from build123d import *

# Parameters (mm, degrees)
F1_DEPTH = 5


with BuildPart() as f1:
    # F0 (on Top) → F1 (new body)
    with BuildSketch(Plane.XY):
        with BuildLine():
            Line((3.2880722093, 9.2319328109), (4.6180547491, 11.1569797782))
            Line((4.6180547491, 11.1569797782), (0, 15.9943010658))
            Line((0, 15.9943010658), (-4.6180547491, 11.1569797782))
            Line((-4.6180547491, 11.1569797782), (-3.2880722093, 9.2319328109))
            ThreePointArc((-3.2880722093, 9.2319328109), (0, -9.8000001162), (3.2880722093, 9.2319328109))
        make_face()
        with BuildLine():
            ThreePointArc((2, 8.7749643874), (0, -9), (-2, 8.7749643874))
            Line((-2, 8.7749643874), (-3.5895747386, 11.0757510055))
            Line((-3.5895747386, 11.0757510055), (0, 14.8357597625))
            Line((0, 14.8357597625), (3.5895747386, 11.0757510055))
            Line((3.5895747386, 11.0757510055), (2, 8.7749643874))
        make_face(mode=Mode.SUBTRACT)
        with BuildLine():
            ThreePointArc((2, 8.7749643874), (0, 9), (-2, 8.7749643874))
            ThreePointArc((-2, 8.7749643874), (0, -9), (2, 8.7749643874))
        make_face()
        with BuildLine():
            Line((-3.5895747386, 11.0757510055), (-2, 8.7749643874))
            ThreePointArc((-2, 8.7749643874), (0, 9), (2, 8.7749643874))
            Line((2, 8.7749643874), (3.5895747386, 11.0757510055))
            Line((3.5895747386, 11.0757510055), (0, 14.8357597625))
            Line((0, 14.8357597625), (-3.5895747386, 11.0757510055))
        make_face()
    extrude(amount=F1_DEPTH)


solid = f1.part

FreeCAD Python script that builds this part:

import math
import FreeCAD as App
import Part
import Sketcher
Q = App.Units.Quantity

doc = App.newDocument("Part")
params = doc.addObject("Spreadsheet::Sheet", "Params")
for row, (alias, value) in enumerate([
    ("sketch1_radius", "9.8 mm"),
    ("pad1_length", "5 mm"),
], start=1):
    params.set(f"A{row}", alias)
    params.set(f"B{row}", "=" + value)
    params.setAlias(f"B{row}", alias)

body = doc.addObject("PartDesign::Body", "Body")

# Sketch on XY plane
sketch1 = body.newObject("Sketcher::SketchObject", "Sketch")
sketch1.AttachmentSupport = (doc.getObject("XY_Plane"), [""])
sketch1.MapMode = "FlatFace"
sketch1.addGeometry(Part.LineSegment(App.Vector(3.3, 9.2, 0), App.Vector(4.6, 11.2, 0)), False)
sketch1.addGeometry(Part.LineSegment(App.Vector(4.6, 11.2, 0), App.Vector(0, 16, 0)), False)
sketch1.addGeometry(Part.LineSegment(App.Vector(0, 16, 0), App.Vector(-4.6, 11.2, 0)), False)
sketch1.addGeometry(Part.LineSegment(App.Vector(-4.6, 11.2, 0), App.Vector(-3.3, 9.2, 0)), False)
sketch1.addGeometry(Part.ArcOfCircle(Part.Circle(App.Vector(0, 0, 0), App.Vector(0, 0, 1), 9.8), math.radians(110), math.radians(430)), False)
sketch1.addConstraint(Sketcher.Constraint("Coincident", 0, 2, 1, 1))
sketch1.addConstraint(Sketcher.Constraint("Coincident", 1, 2, 2, 1))
sketch1.addConstraint(Sketcher.Constraint("Coincident", 2, 2, 3, 1))
sketch1.addConstraint(Sketcher.Constraint("Coincident", 3, 2, 4, 1))
sketch1.addConstraint(Sketcher.Constraint("Coincident", 4, 2, 0, 1))
sketch1.addConstraint(Sketcher.Constraint("Coincident", 4, 3, -1, 1))
sketch1.addConstraint(Sketcher.Constraint("Symmetric", 0, 2, 2, 2, -2))
sketch1.addConstraint(Sketcher.Constraint("PointOnObject", 1, 2, -2))
sketch1.addConstraint(Sketcher.Constraint("Horizontal", 3, 2, 4, 2))
sketch1.addConstraint(Sketcher.Constraint("Radius", 4, Q("9.8 mm")))
sketch1.addConstraint(Sketcher.Constraint("Distance", 0, Q("2.339799 mm")))
sketch1.addConstraint(Sketcher.Constraint("DistanceY", -1, 1, 1, 2, Q("15.994301 mm")))
sketch1.addConstraint(Sketcher.Constraint("DistanceY", -1, 1, 0, 2, Q("11.15698 mm")))
sketch1.addConstraint(Sketcher.Constraint("DistanceX", 2, 2, 0, 2, Q("9.236109 mm")))
sketch1.setExpression("Constraints[9]", "Params.sketch1_radius")
pad1 = body.newObject("PartDesign::Pad", "Pad")
pad1.Profile = sketch1
pad1.setExpression("Length", "Params.pad1_length")

doc.recompute()
